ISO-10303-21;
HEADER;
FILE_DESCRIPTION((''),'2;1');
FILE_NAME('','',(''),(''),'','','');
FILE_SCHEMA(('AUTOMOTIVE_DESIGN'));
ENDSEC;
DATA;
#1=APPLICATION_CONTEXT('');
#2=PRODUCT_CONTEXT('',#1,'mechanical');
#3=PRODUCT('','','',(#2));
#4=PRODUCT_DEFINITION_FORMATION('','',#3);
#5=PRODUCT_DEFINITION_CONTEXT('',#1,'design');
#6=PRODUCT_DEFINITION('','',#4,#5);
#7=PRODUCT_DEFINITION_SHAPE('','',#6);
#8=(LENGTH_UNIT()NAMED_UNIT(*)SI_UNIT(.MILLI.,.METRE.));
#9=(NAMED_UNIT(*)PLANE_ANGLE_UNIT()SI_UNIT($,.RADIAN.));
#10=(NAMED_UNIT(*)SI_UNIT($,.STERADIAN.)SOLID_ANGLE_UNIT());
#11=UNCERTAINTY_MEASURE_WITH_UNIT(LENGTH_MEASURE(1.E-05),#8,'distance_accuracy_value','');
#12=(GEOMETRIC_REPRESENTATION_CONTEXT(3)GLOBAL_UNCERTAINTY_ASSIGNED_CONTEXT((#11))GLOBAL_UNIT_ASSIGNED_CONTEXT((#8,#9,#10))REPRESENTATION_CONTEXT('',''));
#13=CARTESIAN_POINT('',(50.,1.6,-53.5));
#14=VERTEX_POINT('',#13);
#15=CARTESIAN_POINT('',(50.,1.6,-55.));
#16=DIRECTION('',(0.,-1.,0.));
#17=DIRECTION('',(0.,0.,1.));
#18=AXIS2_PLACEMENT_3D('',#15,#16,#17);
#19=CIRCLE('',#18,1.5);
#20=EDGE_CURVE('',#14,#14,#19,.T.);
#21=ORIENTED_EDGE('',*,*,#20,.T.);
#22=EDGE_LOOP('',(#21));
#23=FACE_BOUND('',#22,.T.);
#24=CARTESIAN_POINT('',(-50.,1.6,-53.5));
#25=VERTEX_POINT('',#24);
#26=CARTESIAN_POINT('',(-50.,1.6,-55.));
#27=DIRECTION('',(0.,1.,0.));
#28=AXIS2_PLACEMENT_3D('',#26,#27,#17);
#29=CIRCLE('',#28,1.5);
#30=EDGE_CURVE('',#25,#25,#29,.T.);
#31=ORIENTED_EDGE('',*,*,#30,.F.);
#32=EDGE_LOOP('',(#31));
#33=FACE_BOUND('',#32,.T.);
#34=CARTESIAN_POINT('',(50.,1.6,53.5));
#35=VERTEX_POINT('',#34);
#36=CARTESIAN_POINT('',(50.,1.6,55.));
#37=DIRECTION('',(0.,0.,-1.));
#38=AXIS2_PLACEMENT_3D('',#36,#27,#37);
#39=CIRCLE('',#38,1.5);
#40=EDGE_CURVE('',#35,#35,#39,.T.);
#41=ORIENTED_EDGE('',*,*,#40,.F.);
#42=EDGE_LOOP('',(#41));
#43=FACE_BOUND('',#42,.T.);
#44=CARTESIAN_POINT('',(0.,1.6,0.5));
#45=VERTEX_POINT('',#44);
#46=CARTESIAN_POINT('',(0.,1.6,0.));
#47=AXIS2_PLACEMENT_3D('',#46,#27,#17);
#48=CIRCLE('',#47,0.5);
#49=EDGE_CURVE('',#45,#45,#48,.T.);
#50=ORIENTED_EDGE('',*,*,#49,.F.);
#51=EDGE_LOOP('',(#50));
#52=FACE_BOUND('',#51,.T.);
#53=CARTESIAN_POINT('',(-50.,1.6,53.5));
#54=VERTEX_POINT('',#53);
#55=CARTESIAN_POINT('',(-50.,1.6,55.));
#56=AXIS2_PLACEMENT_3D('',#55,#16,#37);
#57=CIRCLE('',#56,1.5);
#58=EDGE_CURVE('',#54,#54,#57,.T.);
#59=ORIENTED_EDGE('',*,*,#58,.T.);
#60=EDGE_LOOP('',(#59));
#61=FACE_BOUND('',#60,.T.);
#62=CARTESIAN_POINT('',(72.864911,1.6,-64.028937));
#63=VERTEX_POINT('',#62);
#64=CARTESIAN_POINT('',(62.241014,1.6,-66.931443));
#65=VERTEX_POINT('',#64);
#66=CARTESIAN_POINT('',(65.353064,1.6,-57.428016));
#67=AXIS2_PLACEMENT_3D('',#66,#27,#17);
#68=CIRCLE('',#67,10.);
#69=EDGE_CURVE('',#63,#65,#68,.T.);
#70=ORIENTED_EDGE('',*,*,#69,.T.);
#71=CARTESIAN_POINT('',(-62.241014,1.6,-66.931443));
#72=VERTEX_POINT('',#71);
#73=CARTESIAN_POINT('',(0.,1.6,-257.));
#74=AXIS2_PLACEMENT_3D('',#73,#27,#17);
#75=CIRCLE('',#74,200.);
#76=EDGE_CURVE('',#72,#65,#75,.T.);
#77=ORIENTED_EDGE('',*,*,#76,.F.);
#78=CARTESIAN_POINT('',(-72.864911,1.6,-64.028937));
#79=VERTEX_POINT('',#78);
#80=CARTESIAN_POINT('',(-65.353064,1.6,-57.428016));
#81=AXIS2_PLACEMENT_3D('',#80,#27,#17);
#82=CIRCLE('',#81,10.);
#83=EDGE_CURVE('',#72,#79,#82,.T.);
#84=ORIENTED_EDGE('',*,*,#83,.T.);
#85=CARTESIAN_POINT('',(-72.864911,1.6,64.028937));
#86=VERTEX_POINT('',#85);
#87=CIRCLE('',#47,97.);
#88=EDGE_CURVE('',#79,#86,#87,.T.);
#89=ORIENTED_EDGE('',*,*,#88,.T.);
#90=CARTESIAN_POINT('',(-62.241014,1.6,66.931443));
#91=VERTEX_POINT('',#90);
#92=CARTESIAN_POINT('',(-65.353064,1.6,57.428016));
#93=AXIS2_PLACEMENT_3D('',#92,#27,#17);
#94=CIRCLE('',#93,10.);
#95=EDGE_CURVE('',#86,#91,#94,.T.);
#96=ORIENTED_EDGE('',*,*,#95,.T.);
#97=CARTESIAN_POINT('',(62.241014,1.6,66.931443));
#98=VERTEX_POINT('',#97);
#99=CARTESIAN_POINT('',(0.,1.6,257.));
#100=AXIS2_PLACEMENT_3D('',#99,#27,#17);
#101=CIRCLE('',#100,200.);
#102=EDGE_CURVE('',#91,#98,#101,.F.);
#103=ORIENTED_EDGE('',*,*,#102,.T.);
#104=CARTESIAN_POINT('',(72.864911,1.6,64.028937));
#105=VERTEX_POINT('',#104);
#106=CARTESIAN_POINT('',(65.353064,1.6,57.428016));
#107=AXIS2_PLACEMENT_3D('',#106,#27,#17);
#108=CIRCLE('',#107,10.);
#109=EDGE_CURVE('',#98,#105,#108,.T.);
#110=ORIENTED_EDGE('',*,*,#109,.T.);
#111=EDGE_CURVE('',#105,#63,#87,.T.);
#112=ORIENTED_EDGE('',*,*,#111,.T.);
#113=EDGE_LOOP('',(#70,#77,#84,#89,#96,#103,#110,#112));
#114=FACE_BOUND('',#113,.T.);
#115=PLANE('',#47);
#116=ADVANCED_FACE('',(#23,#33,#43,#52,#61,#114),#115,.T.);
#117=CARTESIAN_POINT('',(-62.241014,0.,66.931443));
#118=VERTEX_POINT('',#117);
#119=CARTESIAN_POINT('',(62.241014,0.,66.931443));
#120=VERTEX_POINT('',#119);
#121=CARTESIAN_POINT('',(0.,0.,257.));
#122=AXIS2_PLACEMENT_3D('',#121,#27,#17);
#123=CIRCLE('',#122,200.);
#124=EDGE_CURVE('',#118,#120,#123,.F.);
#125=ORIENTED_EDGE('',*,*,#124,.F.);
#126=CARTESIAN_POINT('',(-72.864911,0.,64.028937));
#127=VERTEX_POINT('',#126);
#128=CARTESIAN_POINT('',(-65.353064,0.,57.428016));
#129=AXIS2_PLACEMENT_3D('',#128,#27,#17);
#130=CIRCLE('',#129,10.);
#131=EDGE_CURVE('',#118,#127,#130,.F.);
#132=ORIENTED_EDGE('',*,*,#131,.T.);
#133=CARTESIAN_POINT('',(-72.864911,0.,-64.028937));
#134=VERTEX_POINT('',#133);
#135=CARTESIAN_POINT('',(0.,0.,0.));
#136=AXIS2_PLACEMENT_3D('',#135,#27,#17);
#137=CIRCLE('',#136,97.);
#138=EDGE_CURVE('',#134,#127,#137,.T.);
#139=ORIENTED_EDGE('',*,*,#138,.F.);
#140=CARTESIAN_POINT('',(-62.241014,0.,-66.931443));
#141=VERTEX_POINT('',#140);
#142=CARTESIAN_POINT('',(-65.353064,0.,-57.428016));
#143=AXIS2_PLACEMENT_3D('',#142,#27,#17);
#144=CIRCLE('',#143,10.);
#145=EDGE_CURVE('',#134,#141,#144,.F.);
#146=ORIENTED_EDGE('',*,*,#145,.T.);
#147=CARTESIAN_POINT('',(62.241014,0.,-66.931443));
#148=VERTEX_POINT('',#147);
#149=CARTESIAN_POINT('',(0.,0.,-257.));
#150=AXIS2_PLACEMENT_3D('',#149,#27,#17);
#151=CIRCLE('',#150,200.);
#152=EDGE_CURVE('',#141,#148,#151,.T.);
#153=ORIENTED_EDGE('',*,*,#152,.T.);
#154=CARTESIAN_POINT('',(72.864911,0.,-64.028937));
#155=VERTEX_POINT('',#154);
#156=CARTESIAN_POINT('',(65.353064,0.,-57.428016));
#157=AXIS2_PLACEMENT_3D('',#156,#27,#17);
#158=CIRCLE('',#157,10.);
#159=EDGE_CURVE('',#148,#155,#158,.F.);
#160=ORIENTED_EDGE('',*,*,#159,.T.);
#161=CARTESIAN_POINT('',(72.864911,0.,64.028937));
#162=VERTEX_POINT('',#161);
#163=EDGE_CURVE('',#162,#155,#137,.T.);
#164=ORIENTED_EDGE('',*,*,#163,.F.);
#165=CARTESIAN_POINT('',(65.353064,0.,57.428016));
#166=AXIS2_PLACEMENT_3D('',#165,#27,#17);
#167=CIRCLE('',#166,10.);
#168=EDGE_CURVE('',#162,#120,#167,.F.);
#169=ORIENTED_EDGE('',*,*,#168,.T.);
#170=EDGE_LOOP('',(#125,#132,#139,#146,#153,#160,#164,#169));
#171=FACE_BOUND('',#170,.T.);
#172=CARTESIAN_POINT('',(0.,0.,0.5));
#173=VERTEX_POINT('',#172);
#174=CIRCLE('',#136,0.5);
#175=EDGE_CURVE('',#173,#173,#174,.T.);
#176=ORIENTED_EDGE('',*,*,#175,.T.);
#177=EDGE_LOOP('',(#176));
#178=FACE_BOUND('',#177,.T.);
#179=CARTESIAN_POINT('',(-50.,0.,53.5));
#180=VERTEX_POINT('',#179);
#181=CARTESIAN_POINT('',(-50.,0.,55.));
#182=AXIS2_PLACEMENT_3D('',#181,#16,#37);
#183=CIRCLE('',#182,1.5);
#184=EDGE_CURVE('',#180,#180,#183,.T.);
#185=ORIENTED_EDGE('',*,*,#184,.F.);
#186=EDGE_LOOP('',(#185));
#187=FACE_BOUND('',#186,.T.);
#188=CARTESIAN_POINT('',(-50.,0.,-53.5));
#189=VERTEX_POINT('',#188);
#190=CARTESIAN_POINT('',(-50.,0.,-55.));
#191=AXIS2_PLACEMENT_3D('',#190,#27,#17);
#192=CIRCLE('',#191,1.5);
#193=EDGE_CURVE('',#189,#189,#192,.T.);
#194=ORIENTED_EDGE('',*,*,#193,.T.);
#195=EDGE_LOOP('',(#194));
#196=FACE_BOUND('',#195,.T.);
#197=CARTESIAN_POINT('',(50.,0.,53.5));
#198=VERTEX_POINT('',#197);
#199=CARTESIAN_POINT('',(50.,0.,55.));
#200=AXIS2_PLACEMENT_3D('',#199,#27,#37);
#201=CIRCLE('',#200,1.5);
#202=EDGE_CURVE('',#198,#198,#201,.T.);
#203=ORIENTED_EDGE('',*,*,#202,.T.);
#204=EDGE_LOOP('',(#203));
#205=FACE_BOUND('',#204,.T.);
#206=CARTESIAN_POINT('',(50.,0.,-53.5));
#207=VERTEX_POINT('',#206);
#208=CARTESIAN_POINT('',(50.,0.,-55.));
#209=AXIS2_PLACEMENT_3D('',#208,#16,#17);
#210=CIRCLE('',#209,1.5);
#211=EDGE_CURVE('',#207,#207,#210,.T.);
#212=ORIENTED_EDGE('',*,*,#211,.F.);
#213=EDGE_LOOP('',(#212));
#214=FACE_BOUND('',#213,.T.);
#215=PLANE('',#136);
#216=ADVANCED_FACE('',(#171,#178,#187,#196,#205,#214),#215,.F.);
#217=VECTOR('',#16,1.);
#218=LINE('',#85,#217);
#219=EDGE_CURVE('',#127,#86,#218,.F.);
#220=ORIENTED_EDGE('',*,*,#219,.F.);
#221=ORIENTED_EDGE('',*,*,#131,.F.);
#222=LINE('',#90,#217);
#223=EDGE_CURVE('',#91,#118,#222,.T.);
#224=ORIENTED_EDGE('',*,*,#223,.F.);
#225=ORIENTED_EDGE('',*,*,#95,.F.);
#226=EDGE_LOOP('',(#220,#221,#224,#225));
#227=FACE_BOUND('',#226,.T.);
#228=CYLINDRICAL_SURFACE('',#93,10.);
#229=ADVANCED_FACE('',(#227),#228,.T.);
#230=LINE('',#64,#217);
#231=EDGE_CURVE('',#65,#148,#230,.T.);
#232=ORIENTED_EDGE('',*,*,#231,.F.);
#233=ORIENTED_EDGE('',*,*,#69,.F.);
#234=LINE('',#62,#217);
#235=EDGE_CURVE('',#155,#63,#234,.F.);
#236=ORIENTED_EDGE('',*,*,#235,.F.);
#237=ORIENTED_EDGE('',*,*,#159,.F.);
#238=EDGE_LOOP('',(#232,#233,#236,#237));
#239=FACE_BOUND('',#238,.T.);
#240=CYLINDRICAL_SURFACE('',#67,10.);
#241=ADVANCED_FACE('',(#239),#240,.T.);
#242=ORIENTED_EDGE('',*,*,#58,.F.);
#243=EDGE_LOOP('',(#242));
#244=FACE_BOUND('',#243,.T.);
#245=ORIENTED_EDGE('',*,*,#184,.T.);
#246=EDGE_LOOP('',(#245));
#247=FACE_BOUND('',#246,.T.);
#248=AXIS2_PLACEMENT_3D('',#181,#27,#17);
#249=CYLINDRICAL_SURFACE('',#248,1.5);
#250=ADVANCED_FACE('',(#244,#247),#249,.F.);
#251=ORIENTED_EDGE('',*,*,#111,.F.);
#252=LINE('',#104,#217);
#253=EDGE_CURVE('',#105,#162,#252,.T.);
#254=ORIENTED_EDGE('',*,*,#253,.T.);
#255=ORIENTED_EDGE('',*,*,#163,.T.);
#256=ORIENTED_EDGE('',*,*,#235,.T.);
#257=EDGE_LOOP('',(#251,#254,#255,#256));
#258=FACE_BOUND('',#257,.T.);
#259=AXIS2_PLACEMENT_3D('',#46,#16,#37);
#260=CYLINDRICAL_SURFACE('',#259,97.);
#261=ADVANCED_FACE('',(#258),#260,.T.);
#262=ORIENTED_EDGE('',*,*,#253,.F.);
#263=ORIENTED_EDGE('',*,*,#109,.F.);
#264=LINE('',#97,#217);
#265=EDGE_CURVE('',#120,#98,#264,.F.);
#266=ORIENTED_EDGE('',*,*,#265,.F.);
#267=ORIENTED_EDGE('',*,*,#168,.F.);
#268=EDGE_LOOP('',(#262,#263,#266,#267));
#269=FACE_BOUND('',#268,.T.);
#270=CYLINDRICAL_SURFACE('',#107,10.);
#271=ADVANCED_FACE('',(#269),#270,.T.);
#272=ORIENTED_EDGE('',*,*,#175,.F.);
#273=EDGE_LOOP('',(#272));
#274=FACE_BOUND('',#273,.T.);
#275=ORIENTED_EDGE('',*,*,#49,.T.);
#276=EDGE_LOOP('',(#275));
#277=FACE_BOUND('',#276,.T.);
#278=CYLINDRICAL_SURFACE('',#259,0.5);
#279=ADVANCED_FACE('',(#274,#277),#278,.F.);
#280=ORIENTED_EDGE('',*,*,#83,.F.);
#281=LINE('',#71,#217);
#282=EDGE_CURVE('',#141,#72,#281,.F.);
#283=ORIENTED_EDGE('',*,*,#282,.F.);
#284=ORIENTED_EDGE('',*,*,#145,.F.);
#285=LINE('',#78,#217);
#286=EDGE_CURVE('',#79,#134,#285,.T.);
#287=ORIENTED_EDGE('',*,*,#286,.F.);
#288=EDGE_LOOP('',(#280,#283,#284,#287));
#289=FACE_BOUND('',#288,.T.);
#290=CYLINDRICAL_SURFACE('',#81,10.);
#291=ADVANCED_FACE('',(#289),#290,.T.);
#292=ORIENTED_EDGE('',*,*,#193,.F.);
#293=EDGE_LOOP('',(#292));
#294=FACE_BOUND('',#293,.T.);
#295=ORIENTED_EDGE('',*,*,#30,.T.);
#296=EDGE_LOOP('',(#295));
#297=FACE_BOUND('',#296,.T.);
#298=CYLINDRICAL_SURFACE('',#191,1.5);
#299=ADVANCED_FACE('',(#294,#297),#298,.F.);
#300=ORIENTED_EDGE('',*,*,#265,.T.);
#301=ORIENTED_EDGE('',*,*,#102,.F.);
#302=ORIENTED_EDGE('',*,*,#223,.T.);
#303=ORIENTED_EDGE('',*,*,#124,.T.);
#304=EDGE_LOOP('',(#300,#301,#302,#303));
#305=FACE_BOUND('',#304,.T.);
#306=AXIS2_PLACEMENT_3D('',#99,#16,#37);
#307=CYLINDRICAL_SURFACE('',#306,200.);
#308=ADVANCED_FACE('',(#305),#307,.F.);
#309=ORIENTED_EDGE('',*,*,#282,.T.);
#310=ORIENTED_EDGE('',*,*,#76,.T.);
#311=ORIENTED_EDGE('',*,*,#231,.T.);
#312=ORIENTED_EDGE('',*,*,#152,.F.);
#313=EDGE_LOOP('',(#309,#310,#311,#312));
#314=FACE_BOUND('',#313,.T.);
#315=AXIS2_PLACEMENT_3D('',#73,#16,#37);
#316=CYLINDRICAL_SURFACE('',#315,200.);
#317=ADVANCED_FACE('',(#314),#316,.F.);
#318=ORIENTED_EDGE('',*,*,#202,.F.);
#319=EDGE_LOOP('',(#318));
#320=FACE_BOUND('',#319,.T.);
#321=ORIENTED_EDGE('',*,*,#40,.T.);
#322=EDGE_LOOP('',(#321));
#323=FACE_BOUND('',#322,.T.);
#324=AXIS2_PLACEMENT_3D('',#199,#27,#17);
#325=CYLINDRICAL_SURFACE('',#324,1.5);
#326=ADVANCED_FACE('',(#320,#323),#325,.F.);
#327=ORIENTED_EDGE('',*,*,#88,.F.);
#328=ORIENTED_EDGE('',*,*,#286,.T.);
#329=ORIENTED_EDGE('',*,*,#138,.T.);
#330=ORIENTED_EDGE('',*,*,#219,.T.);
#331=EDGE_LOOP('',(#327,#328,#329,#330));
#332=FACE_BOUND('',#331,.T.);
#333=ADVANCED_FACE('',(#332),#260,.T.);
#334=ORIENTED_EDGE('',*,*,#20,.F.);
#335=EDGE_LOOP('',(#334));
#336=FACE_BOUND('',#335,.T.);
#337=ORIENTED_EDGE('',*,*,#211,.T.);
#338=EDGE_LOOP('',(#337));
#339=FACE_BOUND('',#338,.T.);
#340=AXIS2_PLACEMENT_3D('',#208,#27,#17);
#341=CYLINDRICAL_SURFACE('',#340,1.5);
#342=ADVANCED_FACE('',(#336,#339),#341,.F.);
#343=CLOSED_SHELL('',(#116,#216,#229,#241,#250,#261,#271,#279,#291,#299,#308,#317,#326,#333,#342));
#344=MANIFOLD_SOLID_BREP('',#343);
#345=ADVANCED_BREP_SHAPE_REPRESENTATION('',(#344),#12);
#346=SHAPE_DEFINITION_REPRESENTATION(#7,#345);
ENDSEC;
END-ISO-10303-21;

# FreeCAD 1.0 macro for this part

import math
import FreeCAD as App
import Part
import Sketcher


def edges_at(feature, points):
    """Names of the edges that pass closest to the given points."""
    edges = feature.Shape.Edges
    near = lambda p: min(range(len(edges)), key=lambda i: edges[i].distToShape(Part.Vertex(*p))[0])
    return sorted({f"Edge{near(p) + 1}" for p in points})

doc = App.newDocument("Part")
body = doc.addObject("PartDesign::Body", "Body")

sketch1 = doc.addObject("Sketcher::SketchObject", "Sketch")
body.addObject(sketch1)
sketch1.AttachmentSupport = (doc.XZ_Plane, [""])
sketch1.MapMode = "FlatFace"
sketch1.addGeometry(Part.ArcOfCircle(Part.Circle(App.Vector(0, 0, 0), App.Vector(0, 0, 1), 97), math.radians(0), math.radians(45)), False)
sketch1.addGeometry(Part.ArcOfCircle(Part.Circle(App.Vector(0, 0, 0), App.Vector(0, 0, 1), 97), math.radians(-45), math.radians(0)), False)
sketch1.addGeometry(Part.ArcOfCircle(Part.Circle(App.Vector(0, -257, 0), App.Vector(0, 0, 1), 200), math.radians(70), math.radians(110)), False)
sketch1.addGeometry(Part.ArcOfCircle(Part.Circle(App.Vector(0, 0, 0), App.Vector(0, 0, 1), 97), math.radians(135), math.radians(225)), False)
sketch1.addGeometry(Part.ArcOfCircle(Part.Circle(App.Vector(0, 257, 0), App.Vector(0, 0, 1), 200), math.radians(-110), math.radians(-70)), False)
sketch1.addGeometry(Part.Circle(App.Vector(0, 0, 0), App.Vector(0, 0, 1), 0.5), False)
sketch1.addConstraint(Sketcher.Constraint("Tangent", 0, 1, 1, 2))
sketch1.addConstraint(Sketcher.Constraint("Coincident", 1, 1, 2, 1))
sketch1.addConstraint(Sketcher.Constraint("Coincident", 2, 2, 3, 2))
sketch1.addConstraint(Sketcher.Constraint("Coincident", 3, 1, 4, 1))
sketch1.addConstraint(Sketcher.Constraint("Coincident", 4, 2, 0, 2))
sketch1.addConstraint(Sketcher.Constraint("Coincident", 0, 3, -1, 1))
sketch1.addConstraint(Sketcher.Constraint("Coincident", 3, 3, -1, 1))
sketch1.addConstraint(Sketcher.Constraint("Coincident", 5, 3, -1, 1))
sketch1.addConstraint(Sketcher.Constraint("Equal", 0, 1))
sketch1.addConstraint(Sketcher.Constraint("Equal", 1, 3))
sketch1.addConstraint(Sketcher.Constraint("Equal", 2, 4))
sketch1.addConstraint(Sketcher.Constraint("Symmetric", 2, 3, 4, 3, -1, 1))
sketch1.addConstraint(Sketcher.Constraint("PointOnObject", 2, 3, -2))
sketch1.addConstraint(Sketcher.Constraint("PointOnObject", 0, 1, -1))
sketch1.addConstraint(Sketcher.Constraint("Diameter", 5, 1.0))
sketch1.addConstraint(Sketcher.Constraint("Radius", 0, 97.0))
sketch1.addConstraint(Sketcher.Constraint("Radius", 2, 200.0))
sketch1.addConstraint(Sketcher.Constraint("DistanceY", 2, 3, -1, 1, 257.0))
pad1 = doc.addObject("PartDesign::Pad", "Pad")
body.addObject(pad1)
pad1.Profile = sketch1
pad1.Length = 1.6
pad1.Reversed = True
doc.recompute()

fillet = doc.addObject("PartDesign::Fillet", "Fillet")
body.addObject(fillet)
fillet.Base = (pad1, edges_at(pad1, [
    (-68.192, 0.8, -68.984),
    (68.192, 0.8, -68.984),
    (68.192, 0.8, 68.984),
    (-68.192, 0.8, 68.984),
]))
fillet.Radius = 10

sketch2 = doc.addObject("Sketcher::SketchObject", "Sketch001")
body.addObject(sketch2)
sketch2.AttachmentSupport = (doc.XZ_Plane, [""])
sketch2.MapMode = "FlatFace"
sketch2.AttachmentOffset = App.Placement(App.Vector(0, 0, -1.6), App.Rotation())
sketch2.addGeometry(Part.Circle(App.Vector(-50, -55, 0), App.Vector(0, 0, 1), 1.5), False)
sketch2.addConstraint(Sketcher.Constraint("Diameter", 0, 3.0))
sketch2.addConstraint(Sketcher.Constraint("DistanceX", 0, 3, -1, 1, 50.0))
sketch2.addConstraint(Sketcher.Constraint("DistanceY", 0, 3, -1, 1, 55.0))
pocket1 = doc.addObject("PartDesign::Pocket", "Pocket")
body.addObject(pocket1)
pocket1.Profile = sketch2
pocket1.Type = "ThroughAll"
pocket1.Reversed = True
doc.recompute()

mirrored = doc.addObject("PartDesign::Mirrored", "Mirrored")
body.addObject(mirrored)
mirrored.Originals = [pocket1]
mirrored.MirrorPlane = (doc.YZ_Plane, [""])
body.Tip = mirrored
doc.recompute()

mirrored2 = doc.addObject("PartDesign::Mirrored", "Mirrored001")
body.addObject(mirrored2)
mirrored2.Originals = [pocket1]
mirrored2.MirrorPlane = (doc.XY_Plane, [""])
body.Tip = mirrored2

sketch3 = doc.addObject("Sketcher::SketchObject", "Sketch002")
body.addObject(sketch3)
sketch3.AttachmentSupport = (doc.XZ_Plane, [""])
sketch3.MapMode = "FlatFace"
sketch3.AttachmentOffset = App.Placement(App.Vector(0, 0, -1.6), App.Rotation())
sketch3.addGeometry(Part.Circle(App.Vector(50, 55, 0), App.Vector(0, 0, 1), 1.5), False)
sketch3.addConstraint(Sketcher.Constraint("Diameter", 0, 3.0))
sketch3.addConstraint(Sketcher.Constraint("DistanceX", -1, 1, 0, 3, 50.0))
sketch3.addConstraint(Sketcher.Constraint("DistanceY", -1, 1, 0, 3, 55.0))
pocket2 = doc.addObject("PartDesign::Pocket", "Pocket001")
body.addObject(pocket2)
pocket2.Profile = sketch3
pocket2.Type = "ThroughAll"
pocket2.Reversed = True

doc.recompute()
